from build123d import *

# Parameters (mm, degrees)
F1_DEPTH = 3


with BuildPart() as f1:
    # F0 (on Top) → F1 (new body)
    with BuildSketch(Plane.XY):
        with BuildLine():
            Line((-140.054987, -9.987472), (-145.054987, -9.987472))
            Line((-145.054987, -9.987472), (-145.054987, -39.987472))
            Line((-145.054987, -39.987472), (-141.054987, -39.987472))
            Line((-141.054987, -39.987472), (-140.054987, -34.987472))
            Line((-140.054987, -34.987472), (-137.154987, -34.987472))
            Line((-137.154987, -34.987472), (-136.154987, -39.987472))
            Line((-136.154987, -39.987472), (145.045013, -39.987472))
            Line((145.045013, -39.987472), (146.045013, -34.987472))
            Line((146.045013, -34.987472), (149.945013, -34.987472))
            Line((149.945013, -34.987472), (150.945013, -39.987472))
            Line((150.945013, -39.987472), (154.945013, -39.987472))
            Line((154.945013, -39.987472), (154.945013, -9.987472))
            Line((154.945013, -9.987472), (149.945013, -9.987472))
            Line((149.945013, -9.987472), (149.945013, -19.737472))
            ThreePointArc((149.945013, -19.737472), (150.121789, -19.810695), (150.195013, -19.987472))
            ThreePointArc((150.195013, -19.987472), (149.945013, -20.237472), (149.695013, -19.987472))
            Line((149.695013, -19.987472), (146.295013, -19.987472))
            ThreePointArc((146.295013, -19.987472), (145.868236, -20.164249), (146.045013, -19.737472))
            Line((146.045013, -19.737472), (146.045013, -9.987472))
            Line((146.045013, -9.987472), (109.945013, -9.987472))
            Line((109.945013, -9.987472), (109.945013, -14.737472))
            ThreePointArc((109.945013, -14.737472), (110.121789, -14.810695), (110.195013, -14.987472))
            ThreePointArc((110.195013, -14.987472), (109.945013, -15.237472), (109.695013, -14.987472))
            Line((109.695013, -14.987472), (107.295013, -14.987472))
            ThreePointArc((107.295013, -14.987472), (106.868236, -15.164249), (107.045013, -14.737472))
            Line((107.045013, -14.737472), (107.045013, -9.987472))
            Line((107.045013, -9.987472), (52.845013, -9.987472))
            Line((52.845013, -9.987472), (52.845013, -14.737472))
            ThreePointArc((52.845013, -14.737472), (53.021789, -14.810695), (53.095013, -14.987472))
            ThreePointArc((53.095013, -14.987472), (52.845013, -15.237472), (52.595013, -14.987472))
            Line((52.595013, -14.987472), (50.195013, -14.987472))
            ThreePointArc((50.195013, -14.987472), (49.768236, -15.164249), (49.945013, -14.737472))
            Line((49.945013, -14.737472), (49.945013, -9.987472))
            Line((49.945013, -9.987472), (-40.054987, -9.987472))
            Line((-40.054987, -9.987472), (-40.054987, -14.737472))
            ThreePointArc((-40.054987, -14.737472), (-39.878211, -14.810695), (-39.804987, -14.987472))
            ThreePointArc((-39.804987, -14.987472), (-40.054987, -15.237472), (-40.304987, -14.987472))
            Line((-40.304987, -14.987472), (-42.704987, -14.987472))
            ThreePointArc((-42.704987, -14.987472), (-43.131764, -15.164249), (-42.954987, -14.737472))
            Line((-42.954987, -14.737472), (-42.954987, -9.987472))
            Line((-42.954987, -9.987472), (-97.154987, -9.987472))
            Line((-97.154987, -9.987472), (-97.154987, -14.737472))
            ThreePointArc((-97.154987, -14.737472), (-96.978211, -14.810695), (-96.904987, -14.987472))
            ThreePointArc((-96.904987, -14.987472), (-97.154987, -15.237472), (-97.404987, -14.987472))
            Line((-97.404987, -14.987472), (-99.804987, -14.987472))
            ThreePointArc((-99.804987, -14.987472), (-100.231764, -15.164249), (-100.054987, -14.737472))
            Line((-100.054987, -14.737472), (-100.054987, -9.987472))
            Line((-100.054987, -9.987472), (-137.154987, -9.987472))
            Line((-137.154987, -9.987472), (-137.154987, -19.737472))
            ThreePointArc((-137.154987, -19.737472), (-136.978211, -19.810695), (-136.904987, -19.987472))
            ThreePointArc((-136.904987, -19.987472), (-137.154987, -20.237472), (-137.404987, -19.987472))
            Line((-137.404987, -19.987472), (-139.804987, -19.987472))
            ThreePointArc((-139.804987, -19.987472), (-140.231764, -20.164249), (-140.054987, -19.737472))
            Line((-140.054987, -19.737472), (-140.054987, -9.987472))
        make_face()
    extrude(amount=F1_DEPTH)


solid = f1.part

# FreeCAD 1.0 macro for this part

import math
import FreeCAD as App
import Part
import Sketcher

V = App.Vector
Q = App.Units.Quantity

doc = App.newDocument("Part")
body = doc.addObject("PartDesign::Body", "Body")

# Sketch on XY plane
sketch1 = doc.addObject("Sketcher::SketchObject", "Sketch")
body.addObject(sketch1)
sketch1.AttachmentSupport = (doc.XY_Plane, [""])
sketch1.MapMode = "FlatFace"
sketch1.addGeometry([
    Part.LineSegment(V(-140.05, -9.99, 0), V(-145.05, -9.99, 0)),  # 0
    Part.LineSegment(V(-145.05, -9.99, 0), V(-145.05, -39.99, 0)),  # 1
    Part.LineSegment(V(-145.05, -39.99, 0), V(-141.05, -39.99, 0)),  # 2
    Part.LineSegment(V(-141.05, -39.99, 0), V(-140.05, -34.99, 0)),  # 3
    Part.LineSegment(V(-140.05, -34.99, 0), V(-137.15, -34.99, 0)),  # 4
    Part.LineSegment(V(-137.15, -34.99, 0), V(-136.15, -39.99, 0)),  # 5
    Part.LineSegment(V(-136.15, -39.99, 0), V(145.05, -39.99, 0)),  # 6
    Part.LineSegment(V(145.05, -39.99, 0), V(146.05, -34.99, 0)),  # 7
    Part.LineSegment(V(146.05, -34.99, 0), V(149.95, -34.99, 0)),  # 8
    Part.LineSegment(V(149.95, -34.99, 0), V(150.95, -39.99, 0)),  # 9
    Part.LineSegment(V(150.95, -39.99, 0), V(154.95, -39.99, 0)),  # 10
    Part.LineSegment(V(154.95, -39.99, 0), V(154.95, -9.99, 0)),  # 11
    Part.LineSegment(V(154.95, -9.99, 0), V(149.95, -9.99, 0)),  # 12
    Part.LineSegment(V(149.95, -9.99, 0), V(149.95, -19.74, 0)),  # 13
    Part.ArcOfCircle(Part.Circle(V(149.95, -19.99, 0), V(0, 0, 1), 0.25), math.radians(0), math.radians(90)),  # 14
    Part.ArcOfCircle(Part.Circle(V(149.95, -19.99, 0), V(0, 0, 1), 0.25), math.radians(180), math.radians(360)),  # 15
    Part.LineSegment(V(149.7, -19.99, 0), V(146.3, -19.99, 0)),  # 16
    Part.ArcOfCircle(Part.Circle(V(146.05, -19.99, 0), V(0, 0, 1), 0.25), math.radians(90), math.radians(360)),  # 17
    Part.LineSegment(V(146.05, -19.74, 0), V(146.05, -9.99, 0)),  # 18
    Part.LineSegment(V(146.05, -9.99, 0), V(109.95, -9.99, 0)),  # 19
    Part.LineSegment(V(109.95, -9.99, 0), V(109.95, -14.74, 0)),  # 20
    Part.ArcOfCircle(Part.Circle(V(109.95, -14.99, 0), V(0, 0, 1), 0.25), math.radians(0), math.radians(90)),  # 21
    Part.ArcOfCircle(Part.Circle(V(109.95, -14.99, 0), V(0, 0, 1), 0.25), math.radians(180), math.radians(360)),  # 22
    Part.LineSegment(V(109.7, -14.99, 0), V(107.3, -14.99, 0)),  # 23
    Part.ArcOfCircle(Part.Circle(V(107.05, -14.99, 0), V(0, 0, 1), 0.25), math.radians(90), math.radians(360)),  # 24
    Part.LineSegment(V(107.05, -14.74, 0), V(107.05, -9.99, 0)),  # 25
    Part.LineSegment(V(107.05, -9.99, 0), V(52.85, -9.99, 0)),  # 26
    Part.LineSegment(V(52.85, -9.99, 0), V(52.85, -14.74, 0)),  # 27
    Part.ArcOfCircle(Part.Circle(V(52.85, -14.99, 0), V(0, 0, 1), 0.25), math.radians(0), math.radians(90)),  # 28
    Part.ArcOfCircle(Part.Circle(V(52.85, -14.99, 0), V(0, 0, 1), 0.25), math.radians(180), math.radians(360)),  # 29
    Part.LineSegment(V(52.6, -14.99, 0), V(50.2, -14.99, 0)),  # 30
    Part.ArcOfCircle(Part.Circle(V(49.95, -14.99, 0), V(0, 0, 1), 0.25), math.radians(90), math.radians(360)),  # 31
    Part.LineSegment(V(49.95, -14.74, 0), V(49.95, -9.99, 0)),  # 32
    Part.LineSegment(V(49.95, -9.99, 0), V(-40.05, -9.99, 0)),  # 33
    Part.LineSegment(V(-40.05, -9.99, 0), V(-40.05, -14.74, 0)),  # 34
    Part.ArcOfCircle(Part.Circle(V(-40.05, -14.99, 0), V(0, 0, 1), 0.25), math.radians(0), math.radians(90)),  # 35
    Part.ArcOfCircle(Part.Circle(V(-40.05, -14.99, 0), V(0, 0, 1), 0.25), math.radians(180), math.radians(360)),  # 36
    Part.LineSegment(V(-40.3, -14.99, 0), V(-42.7, -14.99, 0)),  # 37
    Part.ArcOfCircle(Part.Circle(V(-42.95, -14.99, 0), V(0, 0, 1), 0.25), math.radians(90), math.radians(360)),  # 38
    Part.LineSegment(V(-42.95, -14.74, 0), V(-42.95, -9.99, 0)),  # 39
    Part.LineSegment(V(-42.95, -9.99, 0), V(-97.15, -9.99, 0)),  # 40
    Part.LineSegment(V(-97.15, -9.99, 0), V(-97.15, -14.74, 0)),  # 41
    Part.ArcOfCircle(Part.Circle(V(-97.15, -14.99, 0), V(0, 0, 1), 0.25), math.radians(0), math.radians(90)),  # 42
    Part.ArcOfCircle(Part.Circle(V(-97.15, -14.99, 0), V(0, 0, 1), 0.25), math.radians(180), math.radians(360)),  # 43
    Part.LineSegment(V(-97.4, -14.99, 0), V(-99.8, -14.99, 0)),  # 44
    Part.ArcOfCircle(Part.Circle(V(-100.05, -14.99, 0), V(0, 0, 1), 0.25), math.radians(90), math.radians(360)),  # 45
    Part.LineSegment(V(-100.05, -14.74, 0), V(-100.05, -9.99, 0)),  # 46
    Part.LineSegment(V(-100.05, -9.99, 0), V(-137.15, -9.99, 0)),  # 47
    Part.LineSegment(V(-137.15, -9.99, 0), V(-137.15, -19.74, 0)),  # 48
    Part.ArcOfCircle(Part.Circle(V(-137.15, -19.99, 0), V(0, 0, 1), 0.25), math.radians(0), math.radians(90)),  # 49
    Part.ArcOfCircle(Part.Circle(V(-137.15, -19.99, 0), V(0, 0, 1), 0.25), math.radians(180), math.radians(360)),  # 50
    Part.LineSegment(V(-137.4, -19.99, 0), V(-139.8, -19.99, 0)),  # 51
    Part.ArcOfCircle(Part.Circle(V(-140.05, -19.99, 0), V(0, 0, 1), 0.25), math.radians(90), math.radians(360)),  # 52
    Part.LineSegment(V(-140.05, -19.74, 0), V(-140.05, -9.99, 0)),  # 53
], False)
sketch1.addConstraint([
    Sketcher.Constraint("Coincident", 0, 2, 1, 1),
    Sketcher.Constraint("Coincident", 1, 2, 2, 1),
    Sketcher.Constraint("Coincident", 2, 2, 3, 1),
    Sketcher.Constraint("Coincident", 3, 2, 4, 1),
    Sketcher.Constraint("Coincident", 4, 2, 5, 1),
    Sketcher.Constraint("Coincident", 5, 2, 6, 1),
    Sketcher.Constraint("Coincident", 6, 2, 7, 1),
    Sketcher.Constraint("Coincident", 7, 2, 8, 1),
    Sketcher.Constraint("Coincident", 8, 2, 9, 1),
    Sketcher.Constraint("Coincident", 9, 2, 10, 1),
    Sketcher.Constraint("Coincident", 10, 2, 11, 1),
    Sketcher.Constraint("Coincident", 11, 2, 12, 1),
    Sketcher.Constraint("Coincident", 12, 2, 13, 1),
    Sketcher.Constraint("Coincident", 13, 2, 14, 2),
    Sketcher.Constraint("Coincident", 14, 1, 15, 2),
    Sketcher.Constraint("Coincident", 15, 1, 16, 1),
    Sketcher.Constraint("Coincident", 16, 2, 17, 2),
    Sketcher.Constraint("Coincident", 17, 1, 18, 1),
    Sketcher.Constraint("Coincident", 18, 2, 19, 1),
    Sketcher.Constraint("Coincident", 19, 2, 20, 1),
    Sketcher.Constraint("Coincident", 20, 2, 21, 2),
    Sketcher.Constraint("Coincident", 21, 1, 22, 2),
    Sketcher.Constraint("Coincident", 22, 1, 23, 1),
    Sketcher.Constraint("Coincident", 23, 2, 24, 2),
    Sketcher.Constraint("Coincident", 24, 1, 25, 1),
    Sketcher.Constraint("Coincident", 25, 2, 26, 1),
    Sketcher.Constraint("Coincident", 26, 2, 27, 1),
    Sketcher.Constraint("Coincident", 27, 2, 28, 2),
    Sketcher.Constraint("Coincident", 28, 1, 29, 2),
    Sketcher.Constraint("Coincident", 29, 1, 30, 1),
    Sketcher.Constraint("Coincident", 30, 2, 31, 2),
    Sketcher.Constraint("Coincident", 31, 1, 32, 1),
    Sketcher.Constraint("Coincident", 32, 2, 33, 1),
    Sketcher.Constraint("Coincident", 33, 2, 34, 1),
    Sketcher.Constraint("Coincident", 34, 2, 35, 2),
    Sketcher.Constraint("Coincident", 35, 1, 36, 2),
    Sketcher.Constraint("Coincident", 36, 1, 37, 1),
    Sketcher.Constraint("Coincident", 37, 2, 38, 2),
    Sketcher.Constraint("Coincident", 38, 1, 39, 1),
    Sketcher.Constraint("Coincident", 39, 2, 40, 1),
    Sketcher.Constraint("Coincident", 40, 2, 41, 1),
    Sketcher.Constraint("Coincident", 41, 2, 42, 2),
    Sketcher.Constraint("Coincident", 42, 1, 43, 2),
    Sketcher.Constraint("Coincident", 43, 1, 44, 1),
    Sketcher.Constraint("Coincident", 44, 2, 45, 2),
    Sketcher.Constraint("Coincident", 45, 1, 46, 1),
    Sketcher.Constraint("Coincident", 46, 2, 47, 1),
    Sketcher.Constraint("Coincident", 47, 2, 48, 1),
    Sketcher.Constraint("Coincident", 48, 2, 49, 2),
    Sketcher.Constraint("Coincident", 49, 1, 50, 2),
    Sketcher.Constraint("Coincident", 50, 1, 51, 1),
    Sketcher.Constraint("Coincident", 51, 2, 52, 2),
    Sketcher.Constraint("Coincident", 52, 1, 53, 1),
    Sketcher.Constraint("Coincident", 53, 2, 0, 1),
    Sketcher.Constraint("Horizontal", 0),
    Sketcher.Constraint("Vertical", 1),
    Sketcher.Constraint("Horizontal", 2),
    Sketcher.Constraint("Horizontal", 4),
    Sketcher.Constraint("Horizontal", 6),
    Sketcher.Constraint("Horizontal", 8),
    Sketcher.Constraint("Horizontal", 10),
    Sketcher.Constraint("Vertical", 11),
    Sketcher.Constraint("Horizontal", 12),
    Sketcher.Constraint("Vertical", 13),
    Sketcher.Constraint("Horizontal", 16),
    Sketcher.Constraint("Vertical", 18),
    Sketcher.Constraint("Horizontal", 19),
    Sketcher.Constraint("Vertical", 20),
    Sketcher.Constraint("Horizontal", 23),
    Sketcher.Constraint("Vertical", 25),
    Sketcher.Constraint("Horizontal", 26),
    Sketcher.Constraint("Vertical", 27),
    Sketcher.Constraint("Horizontal", 30),
    Sketcher.Constraint("Vertical", 32),
    Sketcher.Constraint("Horizontal", 33),
    Sketcher.Constraint("Vertical", 34),
    Sketcher.Constraint("Horizontal", 37),
    Sketcher.Constraint("Vertical", 39),
    Sketcher.Constraint("Horizontal", 40),
    Sketcher.Constraint("Vertical", 41),
    Sketcher.Constraint("Horizontal", 44),
    Sketcher.Constraint("Vertical", 46),
    Sketcher.Constraint("Horizontal", 47),
    Sketcher.Constraint("Vertical", 48),
    Sketcher.Constraint("Horizontal", 51),
    Sketcher.Constraint("Vertical", 53),
    Sketcher.Constraint("Coincident", 15, 3, 14, 3),
    Sketcher.Constraint("Coincident", 22, 3, 21, 3),
    Sketcher.Constraint("Coincident", 29, 3, 28, 3),
    Sketcher.Constraint("Coincident", 36, 3, 35, 3),
    Sketcher.Constraint("Coincident", 43, 3, 42, 3),
    Sketcher.Constraint("Coincident", 50, 3, 49, 3),
    Sketcher.Constraint("Equal", 15, 17),
    Sketcher.Constraint("Equal", 17, 21),
    Sketcher.Constraint("Equal", 22, 24),
    Sketcher.Constraint("Equal", 24, 28),
    Sketcher.Constraint("Equal", 29, 31),
    Sketcher.Constraint("Equal", 31, 35),
    Sketcher.Constraint("Equal", 36, 38),
    Sketcher.Constraint("Equal", 38, 42),
    Sketcher.Constraint("Equal", 43, 45),
    Sketcher.Constraint("Equal", 45, 49),
    Sketcher.Constraint("Equal", 50, 52),
    Sketcher.Constraint("Parallel", 3, 7),
    Sketcher.Constraint("Parallel", 5, 9),
    Sketcher.Constraint("Horizontal", 15, 3, 17, 3),
    Sketcher.Constraint("Horizontal", 22, 3, 24, 3),
    Sketcher.Constraint("Horizontal", 24, 3, 28, 3),
    Sketcher.Constraint("Horizontal", 29, 3, 31, 3),
    Sketcher.Constraint("Horizontal", 31, 3, 35, 3),
    Sketcher.Constraint("Horizontal", 36, 3, 38, 3),
    Sketcher.Constraint("Horizontal", 38, 3, 42, 3),
    Sketcher.Constraint("Horizontal", 43, 3, 45, 3),
    Sketcher.Constraint("Horizontal", 17, 3, 49, 3),
    Sketcher.Constraint("Horizontal", 50, 3, 52, 3),
    Sketcher.Constraint("Horizontal", 2, 2, 5, 2),
    Sketcher.Constraint("Horizontal", 4, 2, 7, 2),
    Sketcher.Constraint("Horizontal", 6, 2, 9, 2),
    Sketcher.Constraint("Horizontal", 0, 2, 11, 2),
    Sketcher.Constraint("Horizontal", 52, 3, 14, 1),
    Sketcher.Constraint("Horizontal", 14, 1, 15, 1),
    Sketcher.Constraint("Horizontal", 12, 2, 18, 2),
    Sketcher.Constraint("Horizontal", 45, 3, 21, 1),
    Sketcher.Constraint("Horizontal", 21, 1, 22, 1),
    Sketcher.Constraint("Horizontal", 19, 2, 25, 2),
    Sketcher.Constraint("Horizontal", 23, 2, 28, 1),
    Sketcher.Constraint("Horizontal", 28, 1, 29, 1),
    Sketcher.Constraint("Horizontal", 26, 2, 32, 2),
    Sketcher.Constraint("Horizontal", 30, 2, 35, 1),
    Sketcher.Constraint("Horizontal", 35, 1, 36, 1),
    Sketcher.Constraint("Horizontal", 33, 2, 39, 2),
    Sketcher.Constraint("Horizontal", 37, 2, 42, 1),
    Sketcher.Constraint("Horizontal", 42, 1, 43, 1),
    Sketcher.Constraint("Horizontal", 40, 2, 46, 2),
    Sketcher.Constraint("Horizontal", 16, 2, 49, 1),
    Sketcher.Constraint("Horizontal", 49, 1, 50, 1),
    Sketcher.Constraint("Vertical", 52, 3, 3, 2),
    Sketcher.Constraint("Vertical", 50, 3, 4, 2),
    Sketcher.Constraint("Vertical", 17, 3, 7, 2),
    Sketcher.Constraint("Vertical", 15, 3, 8, 2),
    Sketcher.Constraint("Vertical", 8, 2, 12, 2),
    Sketcher.Constraint("Vertical", 7, 2, 17, 1),
    Sketcher.Constraint("Vertical", 22, 3, 19, 2),
    Sketcher.Constraint("Vertical", 29, 3, 26, 2),
    Sketcher.Constraint("Vertical", 36, 3, 33, 2),
    Sketcher.Constraint("Vertical", 43, 3, 40, 2),
    Sketcher.Constraint("Vertical", 4, 2, 47, 2),
    Sketcher.Constraint("Vertical", 3, 2, 52, 1),
    Sketcher.Constraint("Equal", 2, 10),
    Sketcher.Constraint("Equal", 0, 12),
    Sketcher.Constraint("Equal", 23, 30),
    Sketcher.Constraint("Equal", 30, 37),
    Sketcher.Constraint("Equal", 26, 40),
    Sketcher.Constraint("Equal", 37, 44),
    Sketcher.Constraint("Equal", 44, 51),
    Sketcher.Constraint("DistanceX", 0, 2, 0, 1, Q("5 mm")),
    Sketcher.Constraint("DistanceX", 2, 1, 2, 2, Q("4 mm")),
    Sketcher.Constraint("DistanceX", 33, 2, 33, 1, Q("90 mm")),
    Sketcher.Constraint("DistanceY", 1, 2, 1, 1, Q("30 mm")),
    Sketcher.Constraint("Radius", 14, Q("0.250001 mm")),
    Sketcher.Constraint("DistanceX", 4, 1, 4, 2, Q("2.9 mm")),
    Sketcher.Constraint("DistanceX", 6, 1, 6, 2, Q("281.2 mm")),
    Sketcher.Constraint("DistanceX", 8, 1, 8, 2, Q("3.9 mm")),
    Sketcher.Constraint("DistanceX", 19, 2, 19, 1, Q("36.1 mm")),
    Sketcher.Constraint("DistanceX", 26, 2, 26, 1, Q("54.2 mm")),
    Sketcher.Constraint("DistanceX", 47, 2, 47, 1, Q("37.1 mm")),
    Sketcher.Constraint("DistanceY", 13, 2, 13, 1, Q("9.75 mm")),
    Sketcher.Constraint("DistanceY", 20, 2, 20, 1, Q("4.75 mm")),
    Sketcher.Constraint("Distance", 3, Q("5.09902 mm")),
    Sketcher.Constraint("DistanceY", 1, 2, -1, 1, Q("39.987472 mm")),
    Sketcher.Constraint("DistanceX", -1, 1, 14, 3, Q("149.945012 mm")),
    Sketcher.Constraint("DistanceX", -1, 1, 28, 3, Q("52.845012 mm")),
    Sketcher.Constraint("DistanceX", 35, 3, -1, 1, Q("40.054988 mm")),
    Sketcher.Constraint("DistanceX", 42, 3, -1, 1, Q("97.154988 mm")),
])
pad1 = doc.addObject("PartDesign::Pad", "Pad")
body.addObject(pad1)
pad1.Profile = sketch1
pad1.Length = 3

doc.recompute()
